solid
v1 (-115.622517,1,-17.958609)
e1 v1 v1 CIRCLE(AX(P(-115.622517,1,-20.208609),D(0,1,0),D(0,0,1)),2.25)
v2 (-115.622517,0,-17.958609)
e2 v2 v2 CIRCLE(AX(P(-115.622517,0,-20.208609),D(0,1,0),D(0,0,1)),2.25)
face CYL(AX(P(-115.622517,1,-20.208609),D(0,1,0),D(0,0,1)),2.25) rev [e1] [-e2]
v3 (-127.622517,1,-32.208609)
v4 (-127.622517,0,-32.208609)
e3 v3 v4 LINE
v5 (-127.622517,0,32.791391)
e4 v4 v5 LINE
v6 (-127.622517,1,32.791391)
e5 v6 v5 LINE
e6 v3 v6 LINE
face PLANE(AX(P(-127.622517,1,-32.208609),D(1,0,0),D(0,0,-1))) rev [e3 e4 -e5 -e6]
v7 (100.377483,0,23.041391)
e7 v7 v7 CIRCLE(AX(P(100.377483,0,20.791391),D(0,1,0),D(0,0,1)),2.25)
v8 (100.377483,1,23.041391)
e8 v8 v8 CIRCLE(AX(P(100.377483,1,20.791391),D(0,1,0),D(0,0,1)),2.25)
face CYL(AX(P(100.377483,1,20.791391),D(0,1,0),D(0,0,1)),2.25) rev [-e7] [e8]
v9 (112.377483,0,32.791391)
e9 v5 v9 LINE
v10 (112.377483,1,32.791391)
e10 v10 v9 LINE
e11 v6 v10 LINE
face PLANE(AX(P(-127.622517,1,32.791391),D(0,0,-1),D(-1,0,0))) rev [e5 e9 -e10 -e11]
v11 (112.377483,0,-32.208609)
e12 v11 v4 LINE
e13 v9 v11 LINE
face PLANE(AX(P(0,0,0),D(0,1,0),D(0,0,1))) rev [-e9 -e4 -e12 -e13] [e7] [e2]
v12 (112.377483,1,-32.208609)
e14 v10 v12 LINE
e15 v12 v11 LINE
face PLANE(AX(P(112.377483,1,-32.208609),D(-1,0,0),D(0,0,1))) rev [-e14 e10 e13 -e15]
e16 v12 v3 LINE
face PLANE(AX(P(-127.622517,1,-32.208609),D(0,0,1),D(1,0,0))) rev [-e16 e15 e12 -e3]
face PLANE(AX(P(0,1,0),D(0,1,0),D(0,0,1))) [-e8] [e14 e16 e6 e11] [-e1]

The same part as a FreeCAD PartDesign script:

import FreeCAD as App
import Part
import Sketcher
Q = App.Units.Quantity

doc = App.newDocument("Part")
params = doc.addObject("Spreadsheet::Sheet", "Params")
for row, (alias, value) in enumerate([
    ("sketch1_width", "240 mm"),
    ("sketch1_height", "65 mm"),
    ("pad1_length", "1 mm"),
    ("sketch2_diameter", "4.5 mm"),
    ("hole_diameter", "4.5 mm"),
], start=1):
    params.set(f"A{row}", alias)
    params.set(f"B{row}", "=" + value)
    params.setAlias(f"B{row}", alias)

body = doc.addObject("PartDesign::Body", "Body")

# Sketch on XZ plane
sketch1 = body.newObject("Sketcher::SketchObject", "Sketch")
sketch1.AttachmentSupport = (doc.getObject("XZ_Plane"), [""])
sketch1.MapMode = "FlatFace"
sketch1.addGeometry([
    Part.LineSegment(App.Vector(-127.622517, -32.208609, 0), App.Vector(-127.622517, 32.791391, 0)),
    Part.LineSegment(App.Vector(-127.622517, 32.791391, 0), App.Vector(112.377483, 32.791391, 0)),
    Part.LineSegment(App.Vector(112.377483, 32.791391, 0), App.Vector(112.377483, -32.208609, 0)),
    Part.LineSegment(App.Vector(112.377483, -32.208609, 0), App.Vector(-127.622517, -32.208609, 0)),
], False)
sketch1.addConstraint([
    Sketcher.Constraint("Coincident", 0, 2, 1, 1),
    Sketcher.Constraint("Coincident", 1, 2, 2, 1),
    Sketcher.Constraint("Coincident", 2, 2, 3, 1),
    Sketcher.Constraint("Coincident", 3, 2, 0, 1),
    Sketcher.Constraint("Vertical", 0),
    Sketcher.Constraint("Horizontal", 1),
    Sketcher.Constraint("Vertical", 2),
    Sketcher.Constraint("Horizontal", 3),
    Sketcher.Constraint("DistanceX", 1, 1, 1, 2, Q("240 mm")),
    Sketcher.Constraint("DistanceY", 0, 1, 0, 2, Q("65 mm")),
    Sketcher.Constraint("DistanceY", -1, 1, 0, 2, Q("32.791391 mm")),
    Sketcher.Constraint("DistanceX", 0, 2, -1, 1, Q("127.622517 mm")),
])
sketch1.setExpression("Constraints[8]", "Params.sketch1_width")
sketch1.setExpression("Constraints[9]", "Params.sketch1_height")
pad1 = body.newObject("PartDesign::Pad", "Pad")
pad1.Profile = sketch1
pad1.setExpression("Length", "Params.pad1_length")
pad1.Reversed = True

# Sketch on XZ plane
sketch2 = body.newObject("Sketcher::SketchObject", "Sketch001")
sketch2.AttachmentSupport = (doc.getObject("XZ_Plane"), [""])
sketch2.MapMode = "FlatFace"
sketch2.AttachmentOffset = App.Placement(App.Vector(0, 0, -1), App.Rotation())
sketch2.addGeometry([
    Part.Circle(App.Vector(100.377483, 20.791391, 0), App.Vector(0, 0, 1), 2.25),
    Part.Circle(App.Vector(-115.622517, -20.208609, 0), App.Vector(0, 0, 1), 2.25),
], False)
sketch2.addConstraint([
    Sketcher.Constraint("Equal", 0, 1),
    Sketcher.Constraint("Diameter", 0, Q("4.5 mm")),
    Sketcher.Constraint("DistanceX", 1, 3, 0, 3, Q("216 mm")),
    Sketcher.Constraint("DistanceY", 1, 3, 0, 3, Q("41 mm")),
    Sketcher.Constraint("DistanceY", -1, 1, 0, 3, Q("20.791391 mm")),
    Sketcher.Constraint("DistanceX", -1, 1, 0, 3, Q("100.377483 mm")),
])
sketch2.setExpression("Constraints[1]", "Params.sketch2_diameter")
doc.recompute()
hole = body.newObject("PartDesign::Hole", "Hole")
hole.Profile = sketch2
hole.ThreadType = "None"
hole.setExpression("Diameter", "Params.hole_diameter")
hole.DepthType = "ThroughAll"
hole.Reversed = True

doc.recompute()
